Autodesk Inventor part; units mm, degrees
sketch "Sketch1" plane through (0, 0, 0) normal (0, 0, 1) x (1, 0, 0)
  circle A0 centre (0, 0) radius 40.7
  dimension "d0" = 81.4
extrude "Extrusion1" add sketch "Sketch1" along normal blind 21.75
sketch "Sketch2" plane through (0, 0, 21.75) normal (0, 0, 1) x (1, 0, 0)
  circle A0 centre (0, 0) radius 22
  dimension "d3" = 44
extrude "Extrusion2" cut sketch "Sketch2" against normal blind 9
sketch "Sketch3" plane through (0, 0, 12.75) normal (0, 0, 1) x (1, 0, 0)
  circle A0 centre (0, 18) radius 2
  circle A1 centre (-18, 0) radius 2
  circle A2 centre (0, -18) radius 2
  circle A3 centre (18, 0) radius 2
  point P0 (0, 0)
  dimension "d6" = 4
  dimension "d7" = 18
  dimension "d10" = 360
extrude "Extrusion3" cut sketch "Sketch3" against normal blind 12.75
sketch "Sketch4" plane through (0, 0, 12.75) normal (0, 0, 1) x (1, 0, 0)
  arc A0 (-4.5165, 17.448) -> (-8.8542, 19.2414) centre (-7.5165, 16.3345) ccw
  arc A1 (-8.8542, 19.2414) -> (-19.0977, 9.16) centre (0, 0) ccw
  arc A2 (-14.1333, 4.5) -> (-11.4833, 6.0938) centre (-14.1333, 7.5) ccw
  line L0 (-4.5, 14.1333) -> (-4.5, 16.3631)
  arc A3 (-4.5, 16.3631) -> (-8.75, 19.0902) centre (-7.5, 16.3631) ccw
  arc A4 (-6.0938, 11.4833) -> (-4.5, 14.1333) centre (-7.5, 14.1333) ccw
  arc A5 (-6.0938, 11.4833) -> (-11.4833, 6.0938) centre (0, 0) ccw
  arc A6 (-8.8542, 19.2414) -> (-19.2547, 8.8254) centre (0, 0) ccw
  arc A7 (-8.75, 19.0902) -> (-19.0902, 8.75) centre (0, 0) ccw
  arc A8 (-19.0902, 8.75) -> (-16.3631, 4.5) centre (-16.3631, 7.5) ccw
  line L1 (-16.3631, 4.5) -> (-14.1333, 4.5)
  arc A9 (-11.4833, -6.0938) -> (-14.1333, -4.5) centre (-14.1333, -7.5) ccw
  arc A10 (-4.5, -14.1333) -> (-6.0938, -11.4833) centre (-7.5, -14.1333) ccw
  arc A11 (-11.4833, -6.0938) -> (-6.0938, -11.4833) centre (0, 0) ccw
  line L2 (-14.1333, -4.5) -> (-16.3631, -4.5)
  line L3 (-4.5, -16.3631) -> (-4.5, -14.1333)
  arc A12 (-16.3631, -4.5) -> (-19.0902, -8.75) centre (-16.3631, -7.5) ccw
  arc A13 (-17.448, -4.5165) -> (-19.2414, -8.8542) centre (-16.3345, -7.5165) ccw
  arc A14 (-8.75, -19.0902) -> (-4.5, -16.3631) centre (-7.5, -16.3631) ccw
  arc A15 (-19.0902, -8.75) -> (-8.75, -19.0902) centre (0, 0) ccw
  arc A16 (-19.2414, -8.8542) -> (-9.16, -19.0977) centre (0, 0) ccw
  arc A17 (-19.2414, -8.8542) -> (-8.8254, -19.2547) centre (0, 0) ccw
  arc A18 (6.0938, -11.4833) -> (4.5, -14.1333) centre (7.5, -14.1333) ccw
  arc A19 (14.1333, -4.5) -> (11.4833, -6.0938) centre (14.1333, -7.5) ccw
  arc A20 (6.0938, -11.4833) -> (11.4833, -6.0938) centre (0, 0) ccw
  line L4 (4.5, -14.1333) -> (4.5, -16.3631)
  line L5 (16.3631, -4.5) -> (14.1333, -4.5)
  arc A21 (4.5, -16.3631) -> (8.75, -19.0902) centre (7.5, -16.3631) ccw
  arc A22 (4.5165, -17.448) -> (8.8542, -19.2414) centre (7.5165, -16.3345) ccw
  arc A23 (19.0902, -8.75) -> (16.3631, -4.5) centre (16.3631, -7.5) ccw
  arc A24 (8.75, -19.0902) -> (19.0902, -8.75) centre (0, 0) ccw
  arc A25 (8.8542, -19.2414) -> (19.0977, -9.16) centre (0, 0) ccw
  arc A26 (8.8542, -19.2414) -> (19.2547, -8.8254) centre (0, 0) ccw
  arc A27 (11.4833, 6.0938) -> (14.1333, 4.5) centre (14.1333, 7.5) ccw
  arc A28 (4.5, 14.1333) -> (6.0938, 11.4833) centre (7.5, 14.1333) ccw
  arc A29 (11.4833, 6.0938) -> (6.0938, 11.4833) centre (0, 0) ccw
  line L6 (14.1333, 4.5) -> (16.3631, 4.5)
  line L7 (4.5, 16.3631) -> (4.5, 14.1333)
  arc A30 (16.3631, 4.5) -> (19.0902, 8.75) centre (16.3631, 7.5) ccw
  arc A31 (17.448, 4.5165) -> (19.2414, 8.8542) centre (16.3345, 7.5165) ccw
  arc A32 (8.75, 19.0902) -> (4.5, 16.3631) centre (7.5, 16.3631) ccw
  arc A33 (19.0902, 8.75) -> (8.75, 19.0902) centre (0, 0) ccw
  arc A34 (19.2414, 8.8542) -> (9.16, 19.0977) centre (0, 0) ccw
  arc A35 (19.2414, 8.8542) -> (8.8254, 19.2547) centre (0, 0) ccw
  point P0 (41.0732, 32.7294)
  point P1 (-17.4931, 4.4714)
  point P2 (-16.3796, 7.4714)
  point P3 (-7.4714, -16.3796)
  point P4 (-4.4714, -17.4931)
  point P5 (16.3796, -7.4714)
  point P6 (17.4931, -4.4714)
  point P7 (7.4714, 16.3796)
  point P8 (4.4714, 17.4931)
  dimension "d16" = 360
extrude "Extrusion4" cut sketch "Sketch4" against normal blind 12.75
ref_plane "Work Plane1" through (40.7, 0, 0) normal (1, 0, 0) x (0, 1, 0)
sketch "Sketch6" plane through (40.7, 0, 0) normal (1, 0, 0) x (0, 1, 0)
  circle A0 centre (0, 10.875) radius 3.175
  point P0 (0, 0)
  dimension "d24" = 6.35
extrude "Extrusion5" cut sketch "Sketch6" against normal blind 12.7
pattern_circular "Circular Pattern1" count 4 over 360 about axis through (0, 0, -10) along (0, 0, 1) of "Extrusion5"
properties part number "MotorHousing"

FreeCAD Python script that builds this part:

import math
import FreeCAD as App
import Part
import Sketcher
from FreeCAD import Vector

doc = App.newDocument("Part")
body = doc.addObject("PartDesign::Body", "Body")

# Sketch on XY plane
sketch1 = body.newObject("Sketcher::SketchObject", "Sketch")
sketch1.AttachmentSupport = (doc.getObject("XY_Plane"), [""])
sketch1.MapMode = "FlatFace"
sketch1.addGeometry(Part.Circle(Vector(0, 0, 0), Vector(0, 0, 1), 40.7), False)
sketch1.addConstraint(Sketcher.Constraint("Coincident", 0, 3, -1, 1))
sketch1.addConstraint(Sketcher.Constraint("Diameter", 0, 81.4))
pad1 = body.newObject("PartDesign::Pad", "Pad")
pad1.Profile = sketch1
pad1.Length = 21.75

# Sketch on XY plane
sketch2 = body.newObject("Sketcher::SketchObject", "Sketch001")
sketch2.AttachmentSupport = (doc.getObject("XY_Plane"), [""])
sketch2.MapMode = "FlatFace"
sketch2.AttachmentOffset = App.Placement(Vector(0, 0, 21.75), App.Rotation())
sketch2.addGeometry(Part.Circle(Vector(0, 0, 0), Vector(0, 0, 1), 22), False)
sketch2.addConstraint(Sketcher.Constraint("Coincident", 0, 3, -1, 1))
sketch2.addConstraint(Sketcher.Constraint("Diameter", 0, 44.0))
pocket1 = body.newObject("PartDesign::Pocket", "Pocket")
pocket1.Profile = sketch2
pocket1.Length = 9

# Sketch on XY plane
sketch3 = body.newObject("Sketcher::SketchObject", "Sketch002")
sketch3.AttachmentSupport = (doc.getObject("XY_Plane"), [""])
sketch3.MapMode = "FlatFace"
sketch3.AttachmentOffset = App.Placement(Vector(0, 0, 12.75), App.Rotation())
sketch3.addGeometry(Part.Circle(Vector(0, 18, 0), Vector(0, 0, 1), 2), False)
sketch3.addGeometry(Part.Circle(Vector(-18, 0, 0), Vector(0, 0, 1), 2), False)
sketch3.addGeometry(Part.Circle(Vector(0, -18, 0), Vector(0, 0, 1), 2), False)
sketch3.addGeometry(Part.Circle(Vector(18, 0, 0), Vector(0, 0, 1), 2), False)
sketch3.addConstraint(Sketcher.Constraint("Equal", 0, 1))
sketch3.addConstraint(Sketcher.Constraint("Equal", 1, 2))
sketch3.addConstraint(Sketcher.Constraint("Equal", 2, 3))
sketch3.addConstraint(Sketcher.Constraint("Symmetric", 0, 3, 2, 3, -1, 1))
sketch3.addConstraint(Sketcher.Constraint("Symmetric", 1, 3, 3, 3, -1, 1))
sketch3.addConstraint(Sketcher.Constraint("PointOnObject", 0, 3, -2))
sketch3.addConstraint(Sketcher.Constraint("PointOnObject", 1, 3, -1))
sketch3.addConstraint(Sketcher.Constraint("Diameter", 0, 4.0))
sketch3.addConstraint(Sketcher.Constraint("DistanceY", -1, 1, 0, 3, 18.0))
sketch3.addConstraint(Sketcher.Constraint("DistanceX", 1, 3, -1, 1, 18.0))
pocket2 = body.newObject("PartDesign::Pocket", "Pocket001")
pocket2.Profile = sketch3
pocket2.Length = 12.75

# Sketch on XY plane
sketch4 = body.newObject("Sketcher::SketchObject", "Sketch003")
sketch4.AttachmentSupport = (doc.getObject("XY_Plane"), [""])
sketch4.MapMode = "FlatFace"
sketch4.AttachmentOffset = App.Placement(Vector(0, 0, 12.75), App.Rotation())
sketch4.addGeometry(Part.LineSegment(Vector(-16.3631, 4.5, 0), Vector(-14.1333, 4.5, 0)), False)
sketch4.addGeometry(Part.ArcOfCircle(Part.Circle(Vector(-14.1333, 7.5, 0), Vector(0, 0, 1), 3), math.radians(-90), math.radians(-27.952277)), False)
sketch4.addGeometry(Part.ArcOfCircle(Part.Circle(Vector(0, 0, 0), Vector(0, 0, 1), 13.000022), math.radians(117.953384), math.radians(152.046616)), False)
sketch4.addGeometry(Part.ArcOfCircle(Part.Circle(Vector(-7.5, 14.1333, 0), Vector(0, 0, 1), 2.999983), math.radians(-62.047723), math.radians(0)), False)
sketch4.addGeometry(Part.LineSegment(Vector(-4.5, 14.1333, 0), Vector(-4.5, 16.3631, 0)), False)
sketch4.addGeometry(Part.ArcOfCircle(Part.Circle(Vector(-7.5, 16.3631, 0), Vector(0, 0, 1), 3), math.radians(0), math.radians(114.624939)), False)
sketch4.addGeometry(Part.ArcOfCircle(Part.Circle(Vector(0, 0, 0), Vector(0, 0, 1), 20.999958), math.radians(114.624371), math.radians(155.375629)), False)
sketch4.addGeometry(Part.ArcOfCircle(Part.Circle(Vector(-16.3631, 7.5, 0), Vector(0, 0, 1), 2.999929), math.radians(155.375061), math.radians(270)), False)
sketch4.addGeometry(Part.ArcOfCircle(Part.Circle(Vector(0, 0, 0), Vector(0, 0, 1), 13.000022), math.radians(-152.046616), math.radians(-117.953384)), False)
sketch4.addGeometry(Part.ArcOfCircle(Part.Circle(Vector(-14.1333, -7.5, 0), Vector(0, 0, 1), 2.999983), math.radians(27.952277), math.radians(90)), False)
sketch4.addGeometry(Part.LineSegment(Vector(-14.1333, -4.5, 0), Vector(-16.3631, -4.5, 0)), False)
sketch4.addGeometry(Part.ArcOfCircle(Part.Circle(Vector(-16.3631, -7.5, 0), Vector(0, 0, 1), 3), math.radians(90), math.radians(204.624939)), False)
sketch4.addGeometry(Part.ArcOfCircle(Part.Circle(Vector(0, 0, 0), Vector(0, 0, 1), 20.999958), math.radians(-155.375629), math.radians(-114.624371)), False)
sketch4.addGeometry(Part.ArcOfCircle(Part.Circle(Vector(-7.5, -16.3631, 0), Vector(0, 0, 1), 2.999929), math.radians(-114.624939), math.radians(0)), False)
sketch4.addGeometry(Part.LineSegment(Vector(-4.5, -16.3631, 0), Vector(-4.5, -14.1333, 0)), False)
sketch4.addGeometry(Part.ArcOfCircle(Part.Circle(Vector(-7.5, -14.1333, 0), Vector(0, 0, 1), 3), math.radians(0), math.radians(62.047723)), False)
sketch4.addGeometry(Part.ArcOfCircle(Part.Circle(Vector(0, 0, 0), Vector(0, 0, 1), 13.000022), math.radians(-62.046616), math.radians(-27.953384)), False)
sketch4.addGeometry(Part.ArcOfCircle(Part.Circle(Vector(7.5, -14.1333, 0), Vector(0, 0, 1), 2.999983), math.radians(117.952277), math.radians(180)), False)
sketch4.addGeometry(Part.LineSegment(Vector(4.5, -14.1333, 0), Vector(4.5, -16.3631, 0)), False)
sketch4.addGeometry(Part.ArcOfCircle(Part.Circle(Vector(7.5, -16.3631, 0), Vector(0, 0, 1), 3), math.radians(180), math.radians(294.624939)), False)
sketch4.addGeometry(Part.ArcOfCircle(Part.Circle(Vector(0, 0, 0), Vector(0, 0, 1), 20.999958), math.radians(-65.375629), math.radians(-24.624371)), False)
sketch4.addGeometry(Part.ArcOfCircle(Part.Circle(Vector(16.3631, -7.5, 0), Vector(0, 0, 1), 2.999929), math.radians(-24.624939), math.radians(90)), False)
sketch4.addGeometry(Part.LineSegment(Vector(16.3631, -4.5, 0), Vector(14.1333, -4.5, 0)), False)
sketch4.addGeometry(Part.ArcOfCircle(Part.Circle(Vector(14.1333, -7.5, 0), Vector(0, 0, 1), 3), math.radians(90), math.radians(152.047723)), False)
sketch4.addGeometry(Part.ArcOfCircle(Part.Circle(Vector(0, 0, 0), Vector(0, 0, 1), 13.000022), math.radians(27.953384), math.radians(62.046616)), False)
sketch4.addGeometry(Part.ArcOfCircle(Part.Circle(Vector(14.1333, 7.5, 0), Vector(0, 0, 1), 2.999983), math.radians(-152.047723), math.radians(-90)), False)
sketch4.addGeometry(Part.LineSegment(Vector(14.1333, 4.5, 0), Vector(16.3631, 4.5, 0)), False)
sketch4.addGeometry(Part.ArcOfCircle(Part.Circle(Vector(16.3631, 7.5, 0), Vector(0, 0, 1), 3), math.radians(-90), math.radians(24.624939)), False)
sketch4.addGeometry(Part.ArcOfCircle(Part.Circle(Vector(0, 0, 0), Vector(0, 0, 1), 20.999958), math.radians(24.624371), math.radians(65.375629)), False)
sketch4.addGeometry(Part.ArcOfCircle(Part.Circle(Vector(7.5, 16.3631, 0), Vector(0, 0, 1), 2.999929), math.radians(65.375061), math.radians(180)), False)
sketch4.addGeometry(Part.LineSegment(Vector(4.5, 16.3631, 0), Vector(4.5, 14.1333, 0)), False)
sketch4.addGeometry(Part.ArcOfCircle(Part.Circle(Vector(7.5, 14.1333, 0), Vector(0, 0, 1), 3), math.radians(180), math.radians(242.047723)), False)
sketch4.addConstraint(Sketcher.Constraint("Tangent", 0, 2, 1, 1))
sketch4.addConstraint(Sketcher.Constraint("Tangent", 1, 2, 2, 2))
sketch4.addConstraint(Sketcher.Constraint("Tangent", 2, 1, 3, 1))
sketch4.addConstraint(Sketcher.Constraint("Tangent", 3, 2, 4, 1))
sketch4.addConstraint(Sketcher.Constraint("Tangent", 4, 2, 5, 1))
sketch4.addConstraint(Sketcher.Constraint("Tangent", 5, 2, 6, 1))
sketch4.addConstraint(Sketcher.Constraint("Tangent", 6, 2, 7, 1))
sketch4.addConstraint(Sketcher.Constraint("Tangent", 7, 2, 0, 1))
sketch4.addConstraint(Sketcher.Constraint("Tangent", 8, 1, 9, 1))
sketch4.addConstraint(Sketcher.Constraint("Tangent", 9, 2, 10, 1))
sketch4.addConstraint(Sketcher.Constraint("Tangent", 10, 2, 11, 1))
sketch4.addConstraint(Sketcher.Constraint("Tangent", 11, 2, 12, 1))
sketch4.addConstraint(Sketcher.Constraint("Tangent", 12, 2, 13, 1))
sketch4.addConstraint(Sketcher.Constraint("Tangent", 13, 2, 14, 1))
sketch4.addConstraint(Sketcher.Constraint("Tangent", 14, 2, 15, 1))
sketch4.addConstraint(Sketcher.Constraint("Tangent", 15, 2, 8, 2))
sketch4.addConstraint(Sketcher.Constraint("Tangent", 16, 1, 17, 1))
sketch4.addConstraint(Sketcher.Constraint("Tangent", 17, 2, 18, 1))
sketch4.addConstraint(Sketcher.Constraint("Tangent", 18, 2, 19, 1))
sketch4.addConstraint(Sketcher.Constraint("Tangent", 19, 2, 20, 1))
sketch4.addConstraint(Sketcher.Constraint("Tangent", 20, 2, 21, 1))
sketch4.addConstraint(Sketcher.Constraint("Tangent", 21, 2, 22, 1))
sketch4.addConstraint(Sketcher.Constraint("Tangent", 22, 2, 23, 1))
sketch4.addConstraint(Sketcher.Constraint("Tangent", 23, 2, 16, 2))
sketch4.addConstraint(Sketcher.Constraint("Tangent", 24, 1, 25, 1))
sketch4.addConstraint(Sketcher.Constraint("Tangent", 25, 2, 26, 1))
sketch4.addConstraint(Sketcher.Constraint("Tangent", 26, 2, 27, 1))
sketch4.addConstraint(Sketcher.Constraint("Tangent", 27, 2, 28, 1))
sketch4.addConstraint(Sketcher.Constraint("Tangent", 28, 2, 29, 1))
sketch4.addConstraint(Sketcher.Constraint("Tangent", 29, 2, 30, 1))
sketch4.addConstraint(Sketcher.Constraint("Tangent", 30, 2, 31, 1))
sketch4.addConstraint(Sketcher.Constraint("Tangent", 31, 2, 24, 2))
sketch4.addConstraint(Sketcher.Constraint("Horizontal", 0))
sketch4.addConstraint(Sketcher.Constraint("Vertical", 4))
sketch4.addConstraint(Sketcher.Constraint("Horizontal", 10))
sketch4.addConstraint(Sketcher.Constraint("Vertical", 14))
sketch4.addConstraint(Sketcher.Constraint("Vertical", 18))
sketch4.addConstraint(Sketcher.Constraint("Horizontal", 22))
sketch4.addConstraint(Sketcher.Constraint("Horizontal", 26))
sketch4.addConstraint(Sketcher.Constraint("Vertical", 30))
sketch4.addConstraint(Sketcher.Constraint("Coincident", 2, 3, -1, 1))
sketch4.addConstraint(Sketcher.Constraint("Coincident", 6, 3, -1, 1))
sketch4.addConstraint(Sketcher.Constraint("Coincident", 8, 3, -1, 1))
sketch4.addConstraint(Sketcher.Constraint("Coincident", 12, 3, -1, 1))
sketch4.addConstraint(Sketcher.Constraint("Coincident", 16, 3, -1, 1))
sketch4.addConstraint(Sketcher.Constraint("Coincident", 20, 3, -1, 1))
sketch4.addConstraint(Sketcher.Constraint("Coincident", 24, 3, -1, 1))
sketch4.addConstraint(Sketcher.Constraint("Coincident", 28, 3, -1, 1))
sketch4.addConstraint(Sketcher.Constraint("Equal", 1, 3))
sketch4.addConstraint(Sketcher.Constraint("Equal", 3, 5))
sketch4.addConstraint(Sketcher.Constraint("Equal", 5, 7))
sketch4.addConstraint(Sketcher.Constraint("Equal", 2, 8))
sketch4.addConstraint(Sketcher.Constraint("Equal", 7, 9))
sketch4.addConstraint(Sketcher.Constraint("Equal", 9, 11))
sketch4.addConstraint(Sketcher.Constraint("Equal", 6, 12))
sketch4.addConstraint(Sketcher.Constraint("Equal", 11, 13))
sketch4.addConstraint(Sketcher.Constraint("Equal", 13, 15))
sketch4.addConstraint(Sketcher.Constraint("Equal", 8, 16))
sketch4.addConstraint(Sketcher.Constraint("Equal", 15, 17))
sketch4.addConstraint(Sketcher.Constraint("Equal", 17, 19))
sketch4.addConstraint(Sketcher.Constraint("Equal", 12, 20))
sketch4.addConstraint(Sketcher.Constraint("Equal", 19, 21))
sketch4.addConstraint(Sketcher.Constraint("Equal", 21, 23))
sketch4.addConstraint(Sketcher.Constraint("Equal", 16, 24))
sketch4.addConstraint(Sketcher.Constraint("Equal", 23, 25))
sketch4.addConstraint(Sketcher.Constraint("Equal", 25, 27))
sketch4.addConstraint(Sketcher.Constraint("Equal", 20, 28))
sketch4.addConstraint(Sketcher.Constraint("Equal", 27, 29))
sketch4.addConstraint(Sketcher.Constraint("Equal", 29, 31))
sketch4.addConstraint(Sketcher.Constraint("Horizontal", 15, 3, 17, 3))
sketch4.addConstraint(Sketcher.Constraint("Horizontal", 11, 3, 21, 3))
sketch4.addConstraint(Sketcher.Constraint("Horizontal", 7, 3, 25, 3))
sketch4.addConstraint(Sketcher.Constraint("Horizontal", 5, 3, 29, 3))
sketch4.addConstraint(Sketcher.Constraint("Vertical", 1, 3, 9, 3))
sketch4.addConstraint(Sketcher.Constraint("Vertical", 5, 3, 13, 3))
sketch4.addConstraint(Sketcher.Constraint("Equal", 26, 4))
sketch4.addConstraint(Sketcher.Constraint("Radius", 1, 3.0))
sketch4.addConstraint(Sketcher.Constraint("Radius", 2, 13.0))
sketch4.addConstraint(Sketcher.Constraint("Radius", 6, 21.0))
sketch4.addConstraint(Sketcher.Constraint("DistanceY", 9, 3, 1, 3, 15.0))
pocket3 = body.newObject("PartDesign::Pocket", "Pocket002")
pocket3.Profile = sketch4
pocket3.Length = 12.75

# Sketch on YZ plane
sketch5 = body.newObject("Sketcher::SketchObject", "Sketch004")
sketch5.AttachmentSupport = (doc.getObject("YZ_Plane"), [""])
sketch5.MapMode = "FlatFace"
sketch5.AttachmentOffset = App.Placement(Vector(0, 0, 40.7), App.Rotation())
sketch5.addGeometry(Part.Circle(Vector(0, 10.875, 0), Vector(0, 0, 1), 3.175), False)
sketch5.addConstraint(Sketcher.Constraint("PointOnObject", 0, 3, -2))
sketch5.addConstraint(Sketcher.Constraint("Diameter", 0, 6.35))
sketch5.addConstraint(Sketcher.Constraint("DistanceY", -1, 1, 0, 3, 10.875))
pocket4 = body.newObject("PartDesign::Pocket", "Pocket003")
pocket4.Profile = sketch5
pocket4.Length = 12.7
doc.recompute()

polarpattern = body.newObject("PartDesign::PolarPattern", "PolarPattern")
polarpattern.Originals = [pocket4]
polarpattern.Axis = (doc.getObject("Z_Axis"), [""])
polarpattern.Angle = 360
polarpattern.Occurrences = 4
body.Tip = polarpattern

doc.recompute()
